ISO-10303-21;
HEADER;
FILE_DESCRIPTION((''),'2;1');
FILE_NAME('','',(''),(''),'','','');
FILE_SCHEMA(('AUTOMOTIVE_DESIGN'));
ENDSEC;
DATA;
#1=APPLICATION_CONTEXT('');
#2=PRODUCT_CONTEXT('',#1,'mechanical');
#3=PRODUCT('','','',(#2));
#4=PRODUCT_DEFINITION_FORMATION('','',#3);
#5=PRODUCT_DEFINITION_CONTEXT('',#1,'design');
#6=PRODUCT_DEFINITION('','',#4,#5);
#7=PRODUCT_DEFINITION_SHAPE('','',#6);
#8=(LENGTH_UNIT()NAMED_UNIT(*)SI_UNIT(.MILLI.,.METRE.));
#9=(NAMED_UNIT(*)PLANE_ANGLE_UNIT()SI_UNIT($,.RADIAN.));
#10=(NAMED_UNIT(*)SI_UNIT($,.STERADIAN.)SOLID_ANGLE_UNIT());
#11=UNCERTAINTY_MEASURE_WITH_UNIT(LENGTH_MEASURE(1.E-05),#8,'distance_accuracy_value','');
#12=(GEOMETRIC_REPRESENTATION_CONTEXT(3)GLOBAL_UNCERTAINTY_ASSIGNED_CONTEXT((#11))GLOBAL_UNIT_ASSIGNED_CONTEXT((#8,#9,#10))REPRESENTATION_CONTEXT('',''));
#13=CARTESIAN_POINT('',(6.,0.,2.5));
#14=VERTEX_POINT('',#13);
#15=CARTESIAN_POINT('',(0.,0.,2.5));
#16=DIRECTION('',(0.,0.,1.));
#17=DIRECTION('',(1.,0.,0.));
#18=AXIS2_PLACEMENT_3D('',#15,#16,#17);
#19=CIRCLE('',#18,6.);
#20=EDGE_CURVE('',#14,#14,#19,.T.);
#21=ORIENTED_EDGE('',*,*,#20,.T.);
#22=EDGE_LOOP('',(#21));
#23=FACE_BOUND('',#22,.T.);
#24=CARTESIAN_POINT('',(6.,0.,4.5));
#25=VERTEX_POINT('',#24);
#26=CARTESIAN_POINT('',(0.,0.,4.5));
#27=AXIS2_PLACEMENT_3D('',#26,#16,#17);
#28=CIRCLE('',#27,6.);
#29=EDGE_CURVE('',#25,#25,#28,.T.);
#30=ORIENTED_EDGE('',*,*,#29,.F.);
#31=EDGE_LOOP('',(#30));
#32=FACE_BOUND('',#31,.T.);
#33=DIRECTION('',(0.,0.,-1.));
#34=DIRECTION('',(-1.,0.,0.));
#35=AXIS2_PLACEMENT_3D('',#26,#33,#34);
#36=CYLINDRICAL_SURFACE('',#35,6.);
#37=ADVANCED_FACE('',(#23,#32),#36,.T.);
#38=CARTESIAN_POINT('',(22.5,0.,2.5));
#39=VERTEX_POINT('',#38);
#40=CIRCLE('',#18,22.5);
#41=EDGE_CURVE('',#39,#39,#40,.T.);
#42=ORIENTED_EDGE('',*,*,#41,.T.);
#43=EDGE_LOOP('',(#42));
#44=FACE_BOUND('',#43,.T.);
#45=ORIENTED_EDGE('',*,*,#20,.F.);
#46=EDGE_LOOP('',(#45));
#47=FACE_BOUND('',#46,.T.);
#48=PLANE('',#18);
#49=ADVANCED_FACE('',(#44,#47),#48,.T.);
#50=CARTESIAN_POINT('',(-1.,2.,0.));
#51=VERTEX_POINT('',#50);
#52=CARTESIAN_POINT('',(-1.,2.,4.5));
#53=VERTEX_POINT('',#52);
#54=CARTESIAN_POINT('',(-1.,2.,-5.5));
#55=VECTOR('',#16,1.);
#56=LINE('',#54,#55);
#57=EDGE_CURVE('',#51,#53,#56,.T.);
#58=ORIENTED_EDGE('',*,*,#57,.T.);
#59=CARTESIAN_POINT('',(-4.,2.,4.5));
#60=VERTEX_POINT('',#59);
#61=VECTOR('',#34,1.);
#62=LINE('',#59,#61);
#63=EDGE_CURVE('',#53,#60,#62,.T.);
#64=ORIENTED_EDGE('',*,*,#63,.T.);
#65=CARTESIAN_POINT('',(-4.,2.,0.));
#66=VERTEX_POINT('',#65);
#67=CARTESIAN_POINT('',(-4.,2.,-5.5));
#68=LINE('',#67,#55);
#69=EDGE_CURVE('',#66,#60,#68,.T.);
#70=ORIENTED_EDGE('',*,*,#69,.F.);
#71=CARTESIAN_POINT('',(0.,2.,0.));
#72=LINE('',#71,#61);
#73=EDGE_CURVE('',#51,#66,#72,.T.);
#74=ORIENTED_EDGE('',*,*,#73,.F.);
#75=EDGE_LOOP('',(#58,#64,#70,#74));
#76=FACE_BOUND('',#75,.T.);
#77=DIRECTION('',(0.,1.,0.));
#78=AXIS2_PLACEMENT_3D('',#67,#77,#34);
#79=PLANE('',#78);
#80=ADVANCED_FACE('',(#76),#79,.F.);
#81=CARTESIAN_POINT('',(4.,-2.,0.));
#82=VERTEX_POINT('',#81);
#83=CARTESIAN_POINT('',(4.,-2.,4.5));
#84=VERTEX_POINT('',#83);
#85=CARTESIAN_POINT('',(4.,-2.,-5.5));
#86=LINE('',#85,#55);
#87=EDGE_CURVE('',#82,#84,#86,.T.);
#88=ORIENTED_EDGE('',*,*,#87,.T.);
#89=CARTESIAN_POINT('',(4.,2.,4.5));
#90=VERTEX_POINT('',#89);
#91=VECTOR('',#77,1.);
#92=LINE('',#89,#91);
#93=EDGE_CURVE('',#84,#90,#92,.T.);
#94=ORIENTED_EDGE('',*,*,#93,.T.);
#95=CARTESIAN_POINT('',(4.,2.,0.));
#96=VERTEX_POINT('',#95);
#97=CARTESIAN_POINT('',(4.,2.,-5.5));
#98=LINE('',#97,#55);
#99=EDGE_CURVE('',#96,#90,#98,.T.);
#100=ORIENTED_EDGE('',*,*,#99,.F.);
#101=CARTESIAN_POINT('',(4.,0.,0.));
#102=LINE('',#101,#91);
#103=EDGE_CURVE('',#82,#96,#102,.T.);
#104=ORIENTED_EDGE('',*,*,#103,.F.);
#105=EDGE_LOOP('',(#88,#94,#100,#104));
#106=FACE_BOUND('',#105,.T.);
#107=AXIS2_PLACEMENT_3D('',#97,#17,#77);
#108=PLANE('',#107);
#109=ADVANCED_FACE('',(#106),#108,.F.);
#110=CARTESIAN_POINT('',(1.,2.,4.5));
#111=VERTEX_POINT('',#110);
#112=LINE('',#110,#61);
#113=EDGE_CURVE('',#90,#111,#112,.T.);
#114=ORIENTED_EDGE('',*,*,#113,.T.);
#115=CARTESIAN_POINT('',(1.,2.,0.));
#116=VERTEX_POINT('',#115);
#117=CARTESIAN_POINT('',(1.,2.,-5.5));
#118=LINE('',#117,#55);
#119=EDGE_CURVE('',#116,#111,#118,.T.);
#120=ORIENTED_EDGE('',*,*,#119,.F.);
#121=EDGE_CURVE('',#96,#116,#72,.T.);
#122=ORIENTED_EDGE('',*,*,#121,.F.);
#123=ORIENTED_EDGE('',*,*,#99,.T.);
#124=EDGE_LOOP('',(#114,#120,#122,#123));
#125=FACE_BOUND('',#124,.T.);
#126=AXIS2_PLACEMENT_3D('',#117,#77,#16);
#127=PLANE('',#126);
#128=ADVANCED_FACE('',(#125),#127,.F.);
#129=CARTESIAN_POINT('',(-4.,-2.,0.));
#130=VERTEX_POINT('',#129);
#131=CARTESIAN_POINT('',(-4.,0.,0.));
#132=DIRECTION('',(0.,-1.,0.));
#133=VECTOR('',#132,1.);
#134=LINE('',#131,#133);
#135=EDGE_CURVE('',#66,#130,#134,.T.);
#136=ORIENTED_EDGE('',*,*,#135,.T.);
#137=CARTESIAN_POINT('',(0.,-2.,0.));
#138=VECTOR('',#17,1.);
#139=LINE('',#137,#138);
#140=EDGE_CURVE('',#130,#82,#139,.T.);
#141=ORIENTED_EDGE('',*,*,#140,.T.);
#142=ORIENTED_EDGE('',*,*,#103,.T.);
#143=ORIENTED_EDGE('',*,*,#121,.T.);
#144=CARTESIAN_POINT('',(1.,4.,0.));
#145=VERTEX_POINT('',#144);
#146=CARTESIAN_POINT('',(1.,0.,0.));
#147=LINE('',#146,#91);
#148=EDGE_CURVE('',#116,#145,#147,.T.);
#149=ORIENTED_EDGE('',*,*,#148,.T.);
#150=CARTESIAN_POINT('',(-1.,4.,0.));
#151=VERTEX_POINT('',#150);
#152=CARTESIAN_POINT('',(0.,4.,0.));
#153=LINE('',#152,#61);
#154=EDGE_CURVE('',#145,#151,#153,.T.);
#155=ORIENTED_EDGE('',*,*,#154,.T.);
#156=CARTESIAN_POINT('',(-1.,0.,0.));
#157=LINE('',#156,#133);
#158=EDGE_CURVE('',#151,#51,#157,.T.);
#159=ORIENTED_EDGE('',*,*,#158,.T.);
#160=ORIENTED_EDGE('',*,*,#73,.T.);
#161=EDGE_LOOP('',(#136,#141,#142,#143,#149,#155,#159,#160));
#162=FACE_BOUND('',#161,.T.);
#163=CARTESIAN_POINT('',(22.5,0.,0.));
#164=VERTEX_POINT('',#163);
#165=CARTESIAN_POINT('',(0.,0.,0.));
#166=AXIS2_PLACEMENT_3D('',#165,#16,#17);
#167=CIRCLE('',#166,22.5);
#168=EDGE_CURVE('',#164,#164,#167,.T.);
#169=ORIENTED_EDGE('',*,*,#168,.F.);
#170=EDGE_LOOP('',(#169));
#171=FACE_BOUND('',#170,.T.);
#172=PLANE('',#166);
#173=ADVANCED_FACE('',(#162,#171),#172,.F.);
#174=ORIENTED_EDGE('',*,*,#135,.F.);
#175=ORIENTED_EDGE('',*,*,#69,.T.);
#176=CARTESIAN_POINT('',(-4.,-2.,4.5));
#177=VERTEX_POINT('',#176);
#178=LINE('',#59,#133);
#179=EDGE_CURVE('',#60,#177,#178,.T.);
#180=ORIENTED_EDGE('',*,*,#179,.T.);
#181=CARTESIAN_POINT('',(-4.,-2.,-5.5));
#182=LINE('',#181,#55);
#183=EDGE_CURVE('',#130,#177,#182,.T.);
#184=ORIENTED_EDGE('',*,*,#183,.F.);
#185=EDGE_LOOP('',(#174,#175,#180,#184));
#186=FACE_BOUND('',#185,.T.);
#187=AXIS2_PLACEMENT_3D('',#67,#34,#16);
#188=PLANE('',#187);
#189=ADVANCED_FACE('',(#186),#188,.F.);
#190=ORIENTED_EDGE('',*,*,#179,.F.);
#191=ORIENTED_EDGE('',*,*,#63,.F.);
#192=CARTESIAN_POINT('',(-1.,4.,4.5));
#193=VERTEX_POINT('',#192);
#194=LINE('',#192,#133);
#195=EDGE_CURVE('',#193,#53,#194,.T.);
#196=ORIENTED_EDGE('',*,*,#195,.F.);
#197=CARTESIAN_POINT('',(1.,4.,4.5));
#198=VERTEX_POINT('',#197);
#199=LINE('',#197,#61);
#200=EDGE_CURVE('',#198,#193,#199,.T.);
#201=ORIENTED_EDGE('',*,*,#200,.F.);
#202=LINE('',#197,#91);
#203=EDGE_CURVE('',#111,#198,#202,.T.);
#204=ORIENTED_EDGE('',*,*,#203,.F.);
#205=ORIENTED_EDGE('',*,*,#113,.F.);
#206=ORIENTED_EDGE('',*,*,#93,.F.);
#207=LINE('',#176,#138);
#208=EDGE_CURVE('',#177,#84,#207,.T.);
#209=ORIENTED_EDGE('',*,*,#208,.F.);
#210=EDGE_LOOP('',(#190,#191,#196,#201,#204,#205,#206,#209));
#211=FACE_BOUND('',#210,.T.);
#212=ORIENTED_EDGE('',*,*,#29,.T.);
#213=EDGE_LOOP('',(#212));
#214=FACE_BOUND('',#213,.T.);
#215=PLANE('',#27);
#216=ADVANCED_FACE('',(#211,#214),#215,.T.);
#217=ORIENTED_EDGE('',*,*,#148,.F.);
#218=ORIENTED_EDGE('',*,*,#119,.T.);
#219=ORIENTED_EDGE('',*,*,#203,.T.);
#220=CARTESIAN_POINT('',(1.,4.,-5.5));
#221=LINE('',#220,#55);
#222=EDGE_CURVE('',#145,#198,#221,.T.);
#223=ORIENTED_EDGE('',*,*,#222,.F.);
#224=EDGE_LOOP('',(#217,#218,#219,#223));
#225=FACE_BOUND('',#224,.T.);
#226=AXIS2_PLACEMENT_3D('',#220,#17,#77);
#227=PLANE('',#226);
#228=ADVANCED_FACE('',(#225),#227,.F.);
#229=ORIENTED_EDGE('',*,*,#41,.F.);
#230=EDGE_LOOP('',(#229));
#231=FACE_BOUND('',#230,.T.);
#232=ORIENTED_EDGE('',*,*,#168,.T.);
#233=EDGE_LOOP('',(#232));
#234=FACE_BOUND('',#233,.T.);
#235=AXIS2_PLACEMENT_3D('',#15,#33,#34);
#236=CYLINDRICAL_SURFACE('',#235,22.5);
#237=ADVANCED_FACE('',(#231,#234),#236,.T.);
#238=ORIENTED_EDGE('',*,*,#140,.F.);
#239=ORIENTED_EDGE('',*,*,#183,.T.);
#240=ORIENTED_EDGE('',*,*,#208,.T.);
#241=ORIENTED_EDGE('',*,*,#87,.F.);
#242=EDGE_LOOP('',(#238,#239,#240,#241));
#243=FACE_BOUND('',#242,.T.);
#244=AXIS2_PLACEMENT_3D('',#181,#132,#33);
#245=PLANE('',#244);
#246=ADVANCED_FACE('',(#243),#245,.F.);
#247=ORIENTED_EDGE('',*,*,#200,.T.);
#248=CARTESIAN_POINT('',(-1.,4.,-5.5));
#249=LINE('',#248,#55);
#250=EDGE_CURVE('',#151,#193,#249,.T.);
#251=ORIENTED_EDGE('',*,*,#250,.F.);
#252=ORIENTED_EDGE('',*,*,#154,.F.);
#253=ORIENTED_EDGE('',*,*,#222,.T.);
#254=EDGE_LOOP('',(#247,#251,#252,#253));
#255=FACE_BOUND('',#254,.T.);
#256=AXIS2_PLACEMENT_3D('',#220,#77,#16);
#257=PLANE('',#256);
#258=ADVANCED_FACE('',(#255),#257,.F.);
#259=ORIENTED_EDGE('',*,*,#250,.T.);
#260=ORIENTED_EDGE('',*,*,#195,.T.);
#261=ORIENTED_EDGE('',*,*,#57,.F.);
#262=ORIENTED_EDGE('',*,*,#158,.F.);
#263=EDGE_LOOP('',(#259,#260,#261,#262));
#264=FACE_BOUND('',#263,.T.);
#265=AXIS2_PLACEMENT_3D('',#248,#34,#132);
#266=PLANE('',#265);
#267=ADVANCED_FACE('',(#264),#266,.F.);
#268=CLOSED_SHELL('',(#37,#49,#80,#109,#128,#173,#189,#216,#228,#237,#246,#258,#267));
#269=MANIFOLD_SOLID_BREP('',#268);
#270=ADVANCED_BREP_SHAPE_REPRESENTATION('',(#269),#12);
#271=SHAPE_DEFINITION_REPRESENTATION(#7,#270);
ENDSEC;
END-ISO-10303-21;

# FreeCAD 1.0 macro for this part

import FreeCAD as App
import Part
import Sketcher
from FreeCAD import Vector
Q = App.Units.Quantity

doc = App.newDocument("Part")
body = doc.addObject("PartDesign::Body", "Body")

# Sketch on XY plane
sketch1 = doc.addObject("Sketcher::SketchObject", "Sketch")
body.addObject(sketch1)
sketch1.AttachmentSupport = (doc.XY_Plane, [""])
sketch1.MapMode = "FlatFace"
sketch1.addGeometry(Part.Circle(Vector(0, 0, 0), Vector(0, 0, 1), 22.5), False)
sketch1.addConstraint([
    Sketcher.Constraint("Coincident", 0, 3, -1, 1),
    Sketcher.Constraint("Diameter", 0, Q("45 mm")),
])
pad1 = doc.addObject("PartDesign::Pad", "Pad")
body.addObject(pad1)
pad1.Profile = sketch1
pad1.Length = 2.5

# Sketch on XY plane
sketch2 = doc.addObject("Sketcher::SketchObject", "Sketch001")
body.addObject(sketch2)
sketch2.AttachmentSupport = (doc.XY_Plane, [""])
sketch2.MapMode = "FlatFace"
sketch2.AttachmentOffset = App.Placement(Vector(0, 0, 2.5), App.Rotation())
sketch2.addGeometry(Part.Circle(Vector(0, 0, 0), Vector(0, 0, 1), 6), False)
sketch2.addConstraint([
    Sketcher.Constraint("Coincident", 0, 3, -1, 1),
    Sketcher.Constraint("Diameter", 0, Q("12 mm")),
])
pad2 = doc.addObject("PartDesign::Pad", "Pad001")
body.addObject(pad2)
pad2.Profile = sketch2
pad2.Length = 2

# Sketch on XY plane
sketch3 = doc.addObject("Sketcher::SketchObject", "Sketch002")
body.addObject(sketch3)
sketch3.AttachmentSupport = (doc.XY_Plane, [""])
sketch3.MapMode = "FlatFace"
sketch3.AttachmentOffset = App.Placement(Vector(0, 0, 4.5), App.Rotation())
sketch3.addGeometry([
    Part.LineSegment(Vector(-4, 2, 0), Vector(-4, -2, 0)),  # 0
    Part.LineSegment(Vector(-4, -2, 0), Vector(4, -2, 0)),  # 1
    Part.LineSegment(Vector(4, -2, 0), Vector(4, 2, 0)),  # 2
    Part.LineSegment(Vector(4, 2, 0), Vector(1, 2, 0)),  # 3
    Part.LineSegment(Vector(1, 2, 0), Vector(1, 4, 0)),  # 4
    Part.LineSegment(Vector(1, 4, 0), Vector(-1, 4, 0)),  # 5
    Part.LineSegment(Vector(-1, 4, 0), Vector(-1, 2, 0)),  # 6
    Part.LineSegment(Vector(-1, 2, 0), Vector(-4, 2, 0)),  # 7
], False)
sketch3.addConstraint([
    Sketcher.Constraint("Coincident", 0, 2, 1, 1),
    Sketcher.Constraint("Coincident", 1, 2, 2, 1),
    Sketcher.Constraint("Coincident", 2, 2, 3, 1),
    Sketcher.Constraint("Coincident", 3, 2, 4, 1),
    Sketcher.Constraint("Coincident", 4, 2, 5, 1),
    Sketcher.Constraint("Coincident", 5, 2, 6, 1),
    Sketcher.Constraint("Coincident", 6, 2, 7, 1),
    Sketcher.Constraint("Coincident", 7, 2, 0, 1),
    Sketcher.Constraint("Vertical", 0),
    Sketcher.Constraint("Horizontal", 1),
    Sketcher.Constraint("Vertical", 2),
    Sketcher.Constraint("Horizontal", 3),
    Sketcher.Constraint("Vertical", 4),
    Sketcher.Constraint("Horizontal", 5),
    Sketcher.Constraint("Vertical", 6),
    Sketcher.Constraint("Horizontal", 7),
    Sketcher.Constraint("Symmetric", 0, 2, 2, 2, -1, 1),
    Sketcher.Constraint("Symmetric", 3, 2, 6, 2, -2),
    Sketcher.Constraint("Equal", 5, 4),
    Sketcher.Constraint("DistanceX", 1, 1, 1, 2, Q("8 mm")),
    Sketcher.Constraint("DistanceX", 3, 2, 3, 1, Q("3 mm")),
    Sketcher.Constraint("DistanceY", 0, 2, 0, 1, Q("4 mm")),
])
pocket1 = doc.addObject("PartDesign::Pocket", "Pocket")
body.addObject(pocket1)
pocket1.Profile = sketch3
pocket1.Length = 10

doc.recompute()
